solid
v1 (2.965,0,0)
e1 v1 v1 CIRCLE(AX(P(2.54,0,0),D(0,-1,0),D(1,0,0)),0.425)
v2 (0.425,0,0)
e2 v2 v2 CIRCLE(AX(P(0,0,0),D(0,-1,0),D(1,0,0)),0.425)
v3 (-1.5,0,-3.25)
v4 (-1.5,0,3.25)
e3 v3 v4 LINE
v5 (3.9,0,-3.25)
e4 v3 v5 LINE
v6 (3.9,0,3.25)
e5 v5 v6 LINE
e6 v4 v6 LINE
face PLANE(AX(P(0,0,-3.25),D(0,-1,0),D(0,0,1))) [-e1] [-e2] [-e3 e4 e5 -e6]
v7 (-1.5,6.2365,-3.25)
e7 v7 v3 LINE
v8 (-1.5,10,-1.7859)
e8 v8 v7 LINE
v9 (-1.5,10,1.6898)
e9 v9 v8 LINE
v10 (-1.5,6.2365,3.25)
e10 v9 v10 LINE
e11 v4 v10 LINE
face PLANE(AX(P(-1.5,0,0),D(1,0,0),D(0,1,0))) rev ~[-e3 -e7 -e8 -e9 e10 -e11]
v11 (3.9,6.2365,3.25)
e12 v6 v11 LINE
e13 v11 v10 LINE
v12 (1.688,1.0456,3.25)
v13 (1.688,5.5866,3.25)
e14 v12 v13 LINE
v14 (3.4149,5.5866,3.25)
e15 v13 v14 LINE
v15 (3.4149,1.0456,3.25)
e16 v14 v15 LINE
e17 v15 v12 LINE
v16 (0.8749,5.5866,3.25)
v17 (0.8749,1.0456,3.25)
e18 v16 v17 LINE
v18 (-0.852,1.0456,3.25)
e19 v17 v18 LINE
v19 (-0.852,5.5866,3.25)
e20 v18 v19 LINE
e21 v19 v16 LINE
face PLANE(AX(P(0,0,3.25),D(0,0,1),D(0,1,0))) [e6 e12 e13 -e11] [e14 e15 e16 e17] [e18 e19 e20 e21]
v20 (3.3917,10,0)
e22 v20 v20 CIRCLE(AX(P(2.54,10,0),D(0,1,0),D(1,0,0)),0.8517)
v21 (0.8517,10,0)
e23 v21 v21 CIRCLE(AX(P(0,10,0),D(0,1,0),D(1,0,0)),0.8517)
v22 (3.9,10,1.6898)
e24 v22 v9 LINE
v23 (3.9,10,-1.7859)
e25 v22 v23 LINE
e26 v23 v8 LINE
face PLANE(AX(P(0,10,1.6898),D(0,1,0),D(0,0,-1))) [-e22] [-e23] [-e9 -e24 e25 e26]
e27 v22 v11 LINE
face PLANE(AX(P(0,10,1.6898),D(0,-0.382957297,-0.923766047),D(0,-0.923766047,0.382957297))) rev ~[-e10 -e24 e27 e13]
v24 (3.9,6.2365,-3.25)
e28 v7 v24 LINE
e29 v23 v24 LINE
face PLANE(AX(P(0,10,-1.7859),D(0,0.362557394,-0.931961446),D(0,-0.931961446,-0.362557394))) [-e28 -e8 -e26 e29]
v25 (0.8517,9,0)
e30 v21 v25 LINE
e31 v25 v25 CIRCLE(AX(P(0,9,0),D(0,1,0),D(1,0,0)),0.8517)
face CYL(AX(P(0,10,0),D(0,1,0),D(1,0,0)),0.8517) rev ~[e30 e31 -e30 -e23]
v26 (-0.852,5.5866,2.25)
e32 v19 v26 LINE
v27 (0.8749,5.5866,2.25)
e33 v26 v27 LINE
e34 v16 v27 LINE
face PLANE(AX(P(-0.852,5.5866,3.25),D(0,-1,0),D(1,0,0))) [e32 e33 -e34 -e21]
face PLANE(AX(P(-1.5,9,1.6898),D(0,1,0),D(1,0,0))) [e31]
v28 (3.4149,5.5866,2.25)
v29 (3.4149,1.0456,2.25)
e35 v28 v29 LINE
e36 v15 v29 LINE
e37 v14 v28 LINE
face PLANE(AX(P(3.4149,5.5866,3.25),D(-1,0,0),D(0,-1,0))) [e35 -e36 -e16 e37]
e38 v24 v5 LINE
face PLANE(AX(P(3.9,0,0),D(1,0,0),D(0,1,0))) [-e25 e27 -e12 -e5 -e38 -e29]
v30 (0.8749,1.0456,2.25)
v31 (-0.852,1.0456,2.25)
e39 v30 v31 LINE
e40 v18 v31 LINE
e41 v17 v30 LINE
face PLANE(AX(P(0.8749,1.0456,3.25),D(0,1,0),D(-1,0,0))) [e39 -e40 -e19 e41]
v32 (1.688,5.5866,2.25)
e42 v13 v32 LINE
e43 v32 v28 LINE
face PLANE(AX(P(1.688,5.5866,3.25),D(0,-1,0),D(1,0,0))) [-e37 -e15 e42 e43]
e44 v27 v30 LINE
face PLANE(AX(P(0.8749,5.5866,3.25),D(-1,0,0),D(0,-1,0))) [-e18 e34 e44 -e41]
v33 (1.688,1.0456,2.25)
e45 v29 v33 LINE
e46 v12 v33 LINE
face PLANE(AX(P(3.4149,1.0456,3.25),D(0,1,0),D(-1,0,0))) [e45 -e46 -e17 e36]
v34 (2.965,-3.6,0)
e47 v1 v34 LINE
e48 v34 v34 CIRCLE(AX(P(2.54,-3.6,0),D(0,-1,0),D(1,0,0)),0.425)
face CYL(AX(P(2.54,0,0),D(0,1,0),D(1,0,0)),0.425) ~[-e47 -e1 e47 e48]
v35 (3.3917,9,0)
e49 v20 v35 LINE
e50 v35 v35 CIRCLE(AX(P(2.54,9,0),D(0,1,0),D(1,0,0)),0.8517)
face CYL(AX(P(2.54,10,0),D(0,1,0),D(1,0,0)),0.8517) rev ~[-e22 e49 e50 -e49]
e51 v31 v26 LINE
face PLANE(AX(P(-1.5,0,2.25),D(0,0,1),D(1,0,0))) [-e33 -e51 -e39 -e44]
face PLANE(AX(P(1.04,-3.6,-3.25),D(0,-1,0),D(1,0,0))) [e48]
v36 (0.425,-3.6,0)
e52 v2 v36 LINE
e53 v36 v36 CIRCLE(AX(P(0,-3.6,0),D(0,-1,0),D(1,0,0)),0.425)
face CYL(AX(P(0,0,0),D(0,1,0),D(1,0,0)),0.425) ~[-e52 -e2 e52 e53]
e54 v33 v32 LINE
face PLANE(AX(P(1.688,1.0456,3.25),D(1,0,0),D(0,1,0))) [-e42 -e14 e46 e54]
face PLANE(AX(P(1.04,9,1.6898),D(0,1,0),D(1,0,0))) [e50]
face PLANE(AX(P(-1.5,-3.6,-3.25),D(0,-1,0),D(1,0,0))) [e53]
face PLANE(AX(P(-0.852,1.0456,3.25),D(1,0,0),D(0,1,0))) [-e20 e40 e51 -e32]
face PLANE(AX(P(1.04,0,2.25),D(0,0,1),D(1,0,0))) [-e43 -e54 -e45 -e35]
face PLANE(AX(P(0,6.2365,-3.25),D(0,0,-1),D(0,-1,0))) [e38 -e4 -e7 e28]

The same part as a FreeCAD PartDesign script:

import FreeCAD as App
import Part
import Sketcher
Q = App.Units.Quantity

doc = App.newDocument("Part")
body = doc.addObject("PartDesign::Body", "Body")

# Sketch on YZ plane
sketch1 = body.newObject("Sketcher::SketchObject", "Sketch")
sketch1.AttachmentSupport = (doc.getObject("YZ_Plane"), [""])
sketch1.MapMode = "FlatFace"
sketch1.addGeometry(Part.LineSegment(App.Vector(6.2, 3.2, 0), App.Vector(0, 3.2, 0)), False)
sketch1.addGeometry(Part.LineSegment(App.Vector(0, 3.2, 0), App.Vector(0, -3.2, 0)), False)
sketch1.addGeometry(Part.LineSegment(App.Vector(0, -3.2, 0), App.Vector(6.2, -3.2, 0)), False)
sketch1.addGeometry(Part.LineSegment(App.Vector(6.2, -3.2, 0), App.Vector(10, -1.8, 0)), False)
sketch1.addGeometry(Part.LineSegment(App.Vector(10, -1.8, 0), App.Vector(10, 1.7, 0)), False)
sketch1.addGeometry(Part.LineSegment(App.Vector(10, 1.7, 0), App.Vector(6.2, 3.2, 0)), False)
sketch1.addConstraint(Sketcher.Constraint("Coincident", 0, 2, 1, 1))
sketch1.addConstraint(Sketcher.Constraint("Coincident", 1, 2, 2, 1))
sketch1.addConstraint(Sketcher.Constraint("Coincident", 2, 2, 3, 1))
sketch1.addConstraint(Sketcher.Constraint("Coincident", 3, 2, 4, 1))
sketch1.addConstraint(Sketcher.Constraint("Coincident", 4, 2, 5, 1))
sketch1.addConstraint(Sketcher.Constraint("Coincident", 5, 2, 0, 1))
sketch1.addConstraint(Sketcher.Constraint("Horizontal", 0))
sketch1.addConstraint(Sketcher.Constraint("Vertical", 1))
sketch1.addConstraint(Sketcher.Constraint("Horizontal", 2))
sketch1.addConstraint(Sketcher.Constraint("Vertical", 4))
sketch1.addConstraint(Sketcher.Constraint("Symmetric", 0, 2, 1, 2, -1, 1))
sketch1.addConstraint(Sketcher.Constraint("Vertical", 2, 2, 5, 2))
sketch1.addConstraint(Sketcher.Constraint("DistanceY", 1, 2, 1, 1, Q("6.5 mm")))
sketch1.addConstraint(Sketcher.Constraint("DistanceX", -1, 1, 3, 2, Q("10 mm")))
sketch1.addConstraint(Sketcher.Constraint("Distance", 5, Q("4.074 mm")))
sketch1.addConstraint(Sketcher.Constraint("DistanceX", 0, 2, 0, 1, Q("6.2365 mm")))
sketch1.addConstraint(Sketcher.Constraint("DistanceY", 4, 1, 4, 2, Q("3.4757 mm")))
pad1 = body.newObject("PartDesign::Pad", "Pad")
pad1.Profile = sketch1
pad1.Type = "TwoLengths"
pad1.Length = 3.9
pad1.Length2 = 1.5

# Sketch on XZ plane
sketch2 = body.newObject("Sketcher::SketchObject", "Sketch001")
sketch2.AttachmentSupport = (doc.getObject("XZ_Plane"), [""])
sketch2.MapMode = "FlatFace"
sketch2.addGeometry(Part.Circle(App.Vector(0, 0, 0), App.Vector(0, 0, 1), 0.42), False)
sketch2.addConstraint(Sketcher.Constraint("Coincident", 0, 3, -1, 1))
sketch2.addConstraint(Sketcher.Constraint("Diameter", 0, Q("0.85 mm")))
pad2 = body.newObject("PartDesign::Pad", "Pad001")
pad2.Profile = sketch2
pad2.Length = 3.6

# Sketch on XZ plane
sketch3 = body.newObject("Sketcher::SketchObject", "Sketch002")
sketch3.AttachmentSupport = (doc.getObject("XZ_Plane"), [""])
sketch3.MapMode = "FlatFace"
sketch3.AttachmentOffset = App.Placement(App.Vector(0, 0, -10), App.Rotation())
sketch3.addGeometry(Part.Circle(App.Vector(0, 0, 0), App.Vector(0, 0, 1), 0.9), False)
sketch3.addConstraint(Sketcher.Constraint("Coincident", 0, 3, -1, 1))
sketch3.addConstraint(Sketcher.Constraint("Diameter", 0, Q("1.7034 mm")))
pocket1 = body.newObject("PartDesign::Pocket", "Pocket")
pocket1.Profile = sketch3
pocket1.Length = 1
pocket1.Reversed = True

# Sketch on XY plane
sketch4 = body.newObject("Sketcher::SketchObject", "Sketch003")
sketch4.AttachmentSupport = (doc.getObject("XY_Plane"), [""])
sketch4.MapMode = "FlatFace"
sketch4.AttachmentOffset = App.Placement(App.Vector(0, 0, 3.25), App.Rotation())
sketch4.addGeometry(Part.LineSegment(App.Vector(0.9, 5.6, 0), App.Vector(-0.9, 5.6, 0)), False)
sketch4.addGeometry(Part.LineSegment(App.Vector(-0.9, 5.6, 0), App.Vector(-0.9, 1, 0)), False)
sketch4.addGeometry(Part.LineSegment(App.Vector(-0.9, 1, 0), App.Vector(0.9, 1, 0)), False)
sketch4.addGeometry(Part.LineSegment(App.Vector(0.9, 1, 0), App.Vector(0.9, 5.6, 0)), False)
sketch4.addConstraint(Sketcher.Constraint("Coincident", 0, 2, 1, 1))
sketch4.addConstraint(Sketcher.Constraint("Coincident", 1, 2, 2, 1))
sketch4.addConstraint(Sketcher.Constraint("Coincident", 2, 2, 3, 1))
sketch4.addConstraint(Sketcher.Constraint("Coincident", 3, 2, 0, 1))
sketch4.addConstraint(Sketcher.Constraint("Horizontal", 0))
sketch4.addConstraint(Sketcher.Constraint("Vertical", 1))
sketch4.addConstraint(Sketcher.Constraint("Horizontal", 2))
sketch4.addConstraint(Sketcher.Constraint("Vertical", 3))
sketch4.addConstraint(Sketcher.Constraint("DistanceX", 0, 2, 0, 1, Q("1.727 mm")))
sketch4.addConstraint(Sketcher.Constraint("DistanceY", 1, 2, 1, 1, Q("4.541 mm")))
sketch4.addConstraint(Sketcher.Constraint("DistanceX", 0, 2, -1, 1, Q("0.852 mm")))
sketch4.addConstraint(Sketcher.Constraint("DistanceY", -1, 1, 0, 2, Q("5.5866 mm")))
pocket2 = body.newObject("PartDesign::Pocket", "Pocket001")
pocket2.Profile = sketch4
pocket2.Length = 1
doc.recompute()

linearpattern = body.newObject("PartDesign::LinearPattern", "LinearPattern")
linearpattern.Originals = [pocket2, pocket1, pad2]
linearpattern.Direction = (doc.getObject("X_Axis"), [""])
linearpattern.Mode = "offset"
linearpattern.Offset = 2.54
linearpattern.Occurrences = 2
body.Tip = linearpattern

doc.recompute()
